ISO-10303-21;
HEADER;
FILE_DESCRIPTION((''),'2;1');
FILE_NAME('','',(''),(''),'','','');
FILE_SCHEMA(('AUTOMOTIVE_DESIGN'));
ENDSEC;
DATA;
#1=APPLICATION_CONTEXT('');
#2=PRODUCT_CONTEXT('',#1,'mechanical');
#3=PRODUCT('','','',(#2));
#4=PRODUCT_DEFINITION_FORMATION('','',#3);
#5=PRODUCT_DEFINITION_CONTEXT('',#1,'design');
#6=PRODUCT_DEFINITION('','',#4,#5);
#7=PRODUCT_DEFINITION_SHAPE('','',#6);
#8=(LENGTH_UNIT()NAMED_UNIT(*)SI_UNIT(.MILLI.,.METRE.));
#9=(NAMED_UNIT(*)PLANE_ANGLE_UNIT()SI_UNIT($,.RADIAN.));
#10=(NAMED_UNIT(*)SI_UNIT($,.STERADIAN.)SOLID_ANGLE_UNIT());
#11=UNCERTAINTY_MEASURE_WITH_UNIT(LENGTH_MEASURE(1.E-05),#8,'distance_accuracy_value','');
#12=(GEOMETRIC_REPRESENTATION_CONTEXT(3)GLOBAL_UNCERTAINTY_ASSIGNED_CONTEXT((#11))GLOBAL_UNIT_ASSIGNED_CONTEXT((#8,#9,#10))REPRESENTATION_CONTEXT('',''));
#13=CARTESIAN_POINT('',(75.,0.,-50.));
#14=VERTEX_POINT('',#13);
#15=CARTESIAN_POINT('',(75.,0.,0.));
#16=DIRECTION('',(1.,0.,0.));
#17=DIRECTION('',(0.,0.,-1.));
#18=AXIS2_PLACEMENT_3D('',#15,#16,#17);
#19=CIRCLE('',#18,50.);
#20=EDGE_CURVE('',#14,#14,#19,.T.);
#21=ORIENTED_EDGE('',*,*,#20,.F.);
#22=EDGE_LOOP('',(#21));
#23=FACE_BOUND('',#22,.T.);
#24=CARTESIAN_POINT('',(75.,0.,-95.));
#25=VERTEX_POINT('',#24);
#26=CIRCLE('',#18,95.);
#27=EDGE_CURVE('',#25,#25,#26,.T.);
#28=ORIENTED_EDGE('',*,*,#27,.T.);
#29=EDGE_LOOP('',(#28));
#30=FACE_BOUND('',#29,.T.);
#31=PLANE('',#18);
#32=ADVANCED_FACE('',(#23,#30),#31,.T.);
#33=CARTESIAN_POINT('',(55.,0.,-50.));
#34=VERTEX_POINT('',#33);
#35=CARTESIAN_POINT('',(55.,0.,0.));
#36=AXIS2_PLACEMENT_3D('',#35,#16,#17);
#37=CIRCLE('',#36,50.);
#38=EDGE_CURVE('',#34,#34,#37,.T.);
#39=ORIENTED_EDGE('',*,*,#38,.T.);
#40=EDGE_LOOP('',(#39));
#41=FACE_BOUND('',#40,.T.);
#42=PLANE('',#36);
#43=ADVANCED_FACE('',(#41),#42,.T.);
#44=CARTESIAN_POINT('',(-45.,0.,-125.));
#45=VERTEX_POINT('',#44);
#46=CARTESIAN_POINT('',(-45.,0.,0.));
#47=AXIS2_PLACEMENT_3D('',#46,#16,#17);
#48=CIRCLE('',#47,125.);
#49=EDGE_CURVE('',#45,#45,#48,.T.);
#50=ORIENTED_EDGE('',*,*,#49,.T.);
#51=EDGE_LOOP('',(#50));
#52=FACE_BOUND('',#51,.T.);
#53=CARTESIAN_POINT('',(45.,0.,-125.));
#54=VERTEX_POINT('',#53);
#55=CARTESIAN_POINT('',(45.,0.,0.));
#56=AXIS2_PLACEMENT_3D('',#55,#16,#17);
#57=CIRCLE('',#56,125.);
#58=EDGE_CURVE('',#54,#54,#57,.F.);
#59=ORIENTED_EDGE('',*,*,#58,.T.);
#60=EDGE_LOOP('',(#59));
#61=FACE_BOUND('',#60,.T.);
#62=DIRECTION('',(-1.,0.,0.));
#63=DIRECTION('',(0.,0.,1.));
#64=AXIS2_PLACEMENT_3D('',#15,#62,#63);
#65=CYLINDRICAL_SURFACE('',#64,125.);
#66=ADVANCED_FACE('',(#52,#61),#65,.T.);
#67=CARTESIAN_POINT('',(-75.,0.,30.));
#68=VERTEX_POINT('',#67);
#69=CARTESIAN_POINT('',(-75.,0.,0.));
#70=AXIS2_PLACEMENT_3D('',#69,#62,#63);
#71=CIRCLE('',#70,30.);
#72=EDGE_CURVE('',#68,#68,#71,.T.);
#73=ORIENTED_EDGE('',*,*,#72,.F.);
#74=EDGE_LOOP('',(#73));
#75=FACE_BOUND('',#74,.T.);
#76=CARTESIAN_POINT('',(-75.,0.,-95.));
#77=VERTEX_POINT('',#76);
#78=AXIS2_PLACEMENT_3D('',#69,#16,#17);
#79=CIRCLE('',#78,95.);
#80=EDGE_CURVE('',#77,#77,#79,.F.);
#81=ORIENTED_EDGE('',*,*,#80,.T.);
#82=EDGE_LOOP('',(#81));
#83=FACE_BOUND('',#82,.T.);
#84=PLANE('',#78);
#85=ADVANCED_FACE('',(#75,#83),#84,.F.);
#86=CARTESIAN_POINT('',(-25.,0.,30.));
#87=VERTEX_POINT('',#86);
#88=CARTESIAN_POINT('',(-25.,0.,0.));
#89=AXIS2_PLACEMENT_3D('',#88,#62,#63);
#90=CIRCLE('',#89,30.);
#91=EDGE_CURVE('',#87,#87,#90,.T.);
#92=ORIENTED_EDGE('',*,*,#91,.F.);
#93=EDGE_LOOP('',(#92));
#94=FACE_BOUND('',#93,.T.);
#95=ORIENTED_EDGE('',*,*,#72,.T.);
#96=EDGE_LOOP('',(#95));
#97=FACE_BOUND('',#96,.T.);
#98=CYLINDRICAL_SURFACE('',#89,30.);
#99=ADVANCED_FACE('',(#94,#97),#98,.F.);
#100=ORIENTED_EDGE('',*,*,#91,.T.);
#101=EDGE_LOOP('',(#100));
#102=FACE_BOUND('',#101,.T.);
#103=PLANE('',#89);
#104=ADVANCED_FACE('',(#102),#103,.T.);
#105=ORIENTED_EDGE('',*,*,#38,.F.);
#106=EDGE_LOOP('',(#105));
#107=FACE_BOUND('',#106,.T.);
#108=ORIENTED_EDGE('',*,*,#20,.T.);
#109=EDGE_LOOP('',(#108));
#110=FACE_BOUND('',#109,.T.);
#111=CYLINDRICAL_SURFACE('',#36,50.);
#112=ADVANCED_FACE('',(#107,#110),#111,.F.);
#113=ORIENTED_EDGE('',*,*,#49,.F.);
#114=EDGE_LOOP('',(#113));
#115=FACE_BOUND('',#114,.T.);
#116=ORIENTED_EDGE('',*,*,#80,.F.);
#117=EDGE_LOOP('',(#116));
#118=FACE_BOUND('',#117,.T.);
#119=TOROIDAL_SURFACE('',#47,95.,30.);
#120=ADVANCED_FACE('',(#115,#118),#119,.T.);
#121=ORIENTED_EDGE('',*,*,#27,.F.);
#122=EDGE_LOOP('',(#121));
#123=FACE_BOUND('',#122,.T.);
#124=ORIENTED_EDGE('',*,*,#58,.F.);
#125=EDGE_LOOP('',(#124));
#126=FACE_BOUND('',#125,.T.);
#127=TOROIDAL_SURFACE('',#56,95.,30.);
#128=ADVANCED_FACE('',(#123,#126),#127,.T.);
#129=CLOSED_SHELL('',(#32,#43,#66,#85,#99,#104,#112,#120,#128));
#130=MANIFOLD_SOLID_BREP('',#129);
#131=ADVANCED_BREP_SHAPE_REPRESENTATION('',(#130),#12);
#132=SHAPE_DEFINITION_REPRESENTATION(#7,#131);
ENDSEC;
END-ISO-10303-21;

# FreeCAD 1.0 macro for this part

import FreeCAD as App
import Part
import Sketcher

V = App.Vector


def edges_at(feature, points):
    """Names of the edges that pass closest to the given points."""
    edges = feature.Shape.Edges
    near = lambda p: min(range(len(edges)), key=lambda i: edges[i].distToShape(Part.Vertex(*p))[0])
    return sorted({f"Edge{near(p) + 1}" for p in points})

doc = App.newDocument("Part")
body = doc.addObject("PartDesign::Body", "Body")

# Sketch on YZ plane
sketch1 = body.newObject("Sketcher::SketchObject", "Sketch")
sketch1.AttachmentSupport = (doc.getObject("YZ_Plane"), [""])
sketch1.MapMode = "FlatFace"
sketch1.addGeometry(Part.Circle(V(0, 0, 0), V(0, 0, 1), 125), False)
sketch1.addConstraint(Sketcher.Constraint("Coincident", 0, 3, -1, 1))
sketch1.addConstraint(Sketcher.Constraint("Diameter", 0, 250.0))
pad1 = body.newObject("PartDesign::Pad", "Pad")
pad1.Profile = sketch1
pad1.Length = 150
pad1.Midplane = True
doc.recompute()

fillet = body.newObject("PartDesign::Fillet", "Fillet")
fillet.Base = (pad1, edges_at(pad1, [(-75, 0, 125), (75, 0, 125)]))
fillet.Radius = 30

# Sketch on YZ plane
sketch2 = body.newObject("Sketcher::SketchObject", "Sketch001")
sketch2.AttachmentSupport = (doc.getObject("YZ_Plane"), [""])
sketch2.MapMode = "FlatFace"
sketch2.AttachmentOffset = App.Placement(V(0, 0, 75), App.Rotation())
sketch2.addGeometry(Part.Circle(V(0, 0, 0), V(0, 0, 1), 50), False)
sketch2.addConstraint(Sketcher.Constraint("Coincident", 0, 3, -1, 1))
sketch2.addConstraint(Sketcher.Constraint("Diameter", 0, 100.0))
pocket1 = body.newObject("PartDesign::Pocket", "Pocket")
pocket1.Profile = sketch2
pocket1.Length = 20

# Sketch on YZ plane
sketch3 = body.newObject("Sketcher::SketchObject", "Sketch002")
sketch3.AttachmentSupport = (doc.getObject("YZ_Plane"), [""])
sketch3.MapMode = "FlatFace"
sketch3.AttachmentOffset = App.Placement(V(0, 0, -75), App.Rotation())
sketch3.addGeometry(Part.Circle(V(0, 0, 0), V(0, 0, 1), 30), False)
sketch3.addConstraint(Sketcher.Constraint("Coincident", 0, 3, -1, 1))
sketch3.addConstraint(Sketcher.Constraint("Diameter", 0, 60.0))
pocket2 = body.newObject("PartDesign::Pocket", "Pocket001")
pocket2.Profile = sketch3
pocket2.Length = 50
pocket2.Reversed = True

doc.recompute()
